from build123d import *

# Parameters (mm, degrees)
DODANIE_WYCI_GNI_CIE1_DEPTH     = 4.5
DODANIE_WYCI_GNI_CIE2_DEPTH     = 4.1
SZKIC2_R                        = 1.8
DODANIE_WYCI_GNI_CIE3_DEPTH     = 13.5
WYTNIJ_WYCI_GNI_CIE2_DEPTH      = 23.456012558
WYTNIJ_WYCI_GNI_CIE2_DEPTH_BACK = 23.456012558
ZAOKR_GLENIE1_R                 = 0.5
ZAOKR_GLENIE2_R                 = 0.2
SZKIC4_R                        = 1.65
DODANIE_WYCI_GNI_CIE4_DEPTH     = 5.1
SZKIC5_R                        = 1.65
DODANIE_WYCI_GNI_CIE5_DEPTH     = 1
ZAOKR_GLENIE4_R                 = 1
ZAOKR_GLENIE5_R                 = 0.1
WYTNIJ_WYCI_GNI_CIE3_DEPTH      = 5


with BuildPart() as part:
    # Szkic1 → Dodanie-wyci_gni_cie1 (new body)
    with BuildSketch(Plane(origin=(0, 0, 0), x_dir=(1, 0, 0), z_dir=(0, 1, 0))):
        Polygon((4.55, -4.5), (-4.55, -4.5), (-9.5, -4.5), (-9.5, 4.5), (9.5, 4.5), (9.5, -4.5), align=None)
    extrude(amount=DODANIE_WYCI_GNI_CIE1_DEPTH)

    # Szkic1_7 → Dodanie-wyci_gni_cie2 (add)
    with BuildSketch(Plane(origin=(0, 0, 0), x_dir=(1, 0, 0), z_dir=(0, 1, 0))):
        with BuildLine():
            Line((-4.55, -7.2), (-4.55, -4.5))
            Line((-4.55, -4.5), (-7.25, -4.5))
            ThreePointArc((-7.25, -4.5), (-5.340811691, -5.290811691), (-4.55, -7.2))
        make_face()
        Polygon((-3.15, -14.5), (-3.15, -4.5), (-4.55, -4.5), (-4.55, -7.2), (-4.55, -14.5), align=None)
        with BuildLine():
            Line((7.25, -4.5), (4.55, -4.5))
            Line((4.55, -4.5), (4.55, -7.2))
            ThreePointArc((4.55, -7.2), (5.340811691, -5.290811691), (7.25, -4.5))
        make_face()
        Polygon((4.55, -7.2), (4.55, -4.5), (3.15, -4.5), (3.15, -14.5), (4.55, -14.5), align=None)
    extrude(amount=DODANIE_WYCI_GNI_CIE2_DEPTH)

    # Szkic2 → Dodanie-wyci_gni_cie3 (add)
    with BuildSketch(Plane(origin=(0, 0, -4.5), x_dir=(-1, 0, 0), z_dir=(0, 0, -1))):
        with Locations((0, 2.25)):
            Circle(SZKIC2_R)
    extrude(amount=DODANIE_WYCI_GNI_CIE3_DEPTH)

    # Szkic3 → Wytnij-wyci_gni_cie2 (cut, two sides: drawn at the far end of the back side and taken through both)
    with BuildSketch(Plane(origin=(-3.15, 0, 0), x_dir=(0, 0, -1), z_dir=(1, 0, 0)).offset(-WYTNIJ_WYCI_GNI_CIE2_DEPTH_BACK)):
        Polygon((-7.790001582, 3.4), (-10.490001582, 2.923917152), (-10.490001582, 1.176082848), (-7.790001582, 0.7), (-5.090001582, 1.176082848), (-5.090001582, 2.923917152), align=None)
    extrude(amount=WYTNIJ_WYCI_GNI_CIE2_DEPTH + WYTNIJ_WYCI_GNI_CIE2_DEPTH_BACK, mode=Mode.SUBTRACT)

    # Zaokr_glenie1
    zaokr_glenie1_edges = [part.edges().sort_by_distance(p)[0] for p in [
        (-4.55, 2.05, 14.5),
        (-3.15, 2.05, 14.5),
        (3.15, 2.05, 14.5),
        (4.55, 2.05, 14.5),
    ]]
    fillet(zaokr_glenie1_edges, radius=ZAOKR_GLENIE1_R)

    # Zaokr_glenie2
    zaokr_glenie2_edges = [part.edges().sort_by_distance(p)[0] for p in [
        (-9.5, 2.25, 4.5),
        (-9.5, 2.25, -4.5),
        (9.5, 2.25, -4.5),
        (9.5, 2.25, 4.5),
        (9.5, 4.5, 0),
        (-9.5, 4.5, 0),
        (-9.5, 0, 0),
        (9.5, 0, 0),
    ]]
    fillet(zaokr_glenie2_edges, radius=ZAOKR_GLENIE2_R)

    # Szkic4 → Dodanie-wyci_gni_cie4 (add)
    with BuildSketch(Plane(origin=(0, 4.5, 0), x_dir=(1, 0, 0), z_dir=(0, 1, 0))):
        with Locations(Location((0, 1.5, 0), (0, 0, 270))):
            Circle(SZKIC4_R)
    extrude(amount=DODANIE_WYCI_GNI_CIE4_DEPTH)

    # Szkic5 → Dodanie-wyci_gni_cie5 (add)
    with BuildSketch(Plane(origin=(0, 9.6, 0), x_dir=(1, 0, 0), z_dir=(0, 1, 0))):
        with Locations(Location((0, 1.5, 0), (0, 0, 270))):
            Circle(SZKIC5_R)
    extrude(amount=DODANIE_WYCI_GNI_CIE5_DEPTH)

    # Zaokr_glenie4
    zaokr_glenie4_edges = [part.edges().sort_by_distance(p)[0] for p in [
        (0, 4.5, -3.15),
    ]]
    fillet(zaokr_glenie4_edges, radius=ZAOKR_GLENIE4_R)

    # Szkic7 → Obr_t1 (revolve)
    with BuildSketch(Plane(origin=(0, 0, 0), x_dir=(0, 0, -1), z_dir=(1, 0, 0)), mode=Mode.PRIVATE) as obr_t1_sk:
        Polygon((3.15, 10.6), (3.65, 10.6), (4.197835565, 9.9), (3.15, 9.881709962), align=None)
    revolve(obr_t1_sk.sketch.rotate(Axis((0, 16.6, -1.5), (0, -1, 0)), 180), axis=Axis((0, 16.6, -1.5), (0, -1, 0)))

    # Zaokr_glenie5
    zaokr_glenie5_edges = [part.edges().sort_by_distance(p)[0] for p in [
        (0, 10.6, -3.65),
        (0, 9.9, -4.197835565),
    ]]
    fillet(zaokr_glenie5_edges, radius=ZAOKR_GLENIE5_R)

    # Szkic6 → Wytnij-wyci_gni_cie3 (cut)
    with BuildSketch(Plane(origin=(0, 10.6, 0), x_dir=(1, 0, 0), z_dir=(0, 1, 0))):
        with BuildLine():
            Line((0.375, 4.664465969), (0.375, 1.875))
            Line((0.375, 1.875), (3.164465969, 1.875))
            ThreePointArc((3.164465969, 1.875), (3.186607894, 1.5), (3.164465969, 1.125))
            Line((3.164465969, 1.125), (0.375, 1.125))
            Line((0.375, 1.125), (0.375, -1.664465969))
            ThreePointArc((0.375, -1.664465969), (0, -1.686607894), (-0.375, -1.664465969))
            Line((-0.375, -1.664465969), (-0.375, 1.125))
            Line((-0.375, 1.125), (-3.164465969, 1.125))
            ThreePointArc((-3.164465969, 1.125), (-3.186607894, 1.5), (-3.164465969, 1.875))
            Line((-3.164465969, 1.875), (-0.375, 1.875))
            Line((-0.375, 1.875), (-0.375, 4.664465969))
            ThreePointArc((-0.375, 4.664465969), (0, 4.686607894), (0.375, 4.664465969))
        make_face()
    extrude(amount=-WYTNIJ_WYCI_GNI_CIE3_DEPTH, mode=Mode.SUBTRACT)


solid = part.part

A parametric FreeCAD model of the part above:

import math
import FreeCAD as App
import Part
import Sketcher
from FreeCAD import Vector
Q = App.Units.Quantity


def edges_at(feature, points):
    """Names of the edges that pass closest to the given points."""
    edges = feature.Shape.Edges
    near = lambda p: min(range(len(edges)), key=lambda i: edges[i].distToShape(Part.Vertex(*p))[0])
    return sorted({f"Edge{near(p) + 1}" for p in points})

doc = App.newDocument("Part")
body = doc.addObject("PartDesign::Body", "Body")

# Sketch on XZ plane
sketch1 = body.newObject("Sketcher::SketchObject", "Sketch")
sketch1.AttachmentSupport = (doc.getObject("XZ_Plane"), [""])
sketch1.MapMode = "FlatFace"
sketch1.addGeometry(Part.LineSegment(Vector(-10, 4, 0), Vector(10, 4, 0)), False)
sketch1.addGeometry(Part.LineSegment(Vector(10, 4, 0), Vector(10, -4, 0)), False)
sketch1.addGeometry(Part.LineSegment(Vector(10, -4, 0), Vector(-10, -4, 0)), False)
sketch1.addGeometry(Part.LineSegment(Vector(-10, -4, 0), Vector(-10, 4, 0)), False)
sketch1.addConstraint(Sketcher.Constraint("Coincident", 0, 2, 1, 1))
sketch1.addConstraint(Sketcher.Constraint("Coincident", 1, 2, 2, 1))
sketch1.addConstraint(Sketcher.Constraint("Coincident", 2, 2, 3, 1))
sketch1.addConstraint(Sketcher.Constraint("Coincident", 3, 2, 0, 1))
sketch1.addConstraint(Sketcher.Constraint("Horizontal", 0))
sketch1.addConstraint(Sketcher.Constraint("Vertical", 1))
sketch1.addConstraint(Sketcher.Constraint("Horizontal", 2))
sketch1.addConstraint(Sketcher.Constraint("Vertical", 3))
sketch1.addConstraint(Sketcher.Constraint("Symmetric", 0, 2, 2, 2, -1, 1))
sketch1.addConstraint(Sketcher.Constraint("DistanceX", 0, 1, 0, 2, 19.0))
sketch1.addConstraint(Sketcher.Constraint("DistanceY", 1, 2, 1, 1, 9.0))
pad1 = body.newObject("PartDesign::Pad", "Pad")
pad1.Profile = sketch1
pad1.Length = 4.5
pad1.Reversed = True

# Sketch on XZ plane
sketch2 = body.newObject("Sketcher::SketchObject", "Sketch001")
sketch2.AttachmentSupport = (doc.getObject("XZ_Plane"), [""])
sketch2.MapMode = "FlatFace"
sketch2.addGeometry(Part.ArcOfCircle(Part.Circle(Vector(-7.3, 7.2, 0), Vector(0, 0, 1), 2.7), math.radians(-90), math.radians(0)), False)
sketch2.addGeometry(Part.LineSegment(Vector(-4.5, 7.2, 0), Vector(-4.5, 14.5, 0)), False)
sketch2.addGeometry(Part.LineSegment(Vector(-4.5, 14.5, 0), Vector(-3.1, 14.5, 0)), False)
sketch2.addGeometry(Part.LineSegment(Vector(-3.1, 14.5, 0), Vector(-3.1, 4.5, 0)), False)
sketch2.addGeometry(Part.LineSegment(Vector(-3.1, 4.5, 0), Vector(-7.2, 4.5, 0)), False)
sketch2.addGeometry(Part.LineSegment(Vector(7.2, 4.5, 0), Vector(3.1, 4.5, 0)), False)
sketch2.addGeometry(Part.LineSegment(Vector(3.1, 4.5, 0), Vector(3.1, 14.5, 0)), False)
sketch2.addGeometry(Part.LineSegment(Vector(3.1, 14.5, 0), Vector(4.5, 14.5, 0)), False)
sketch2.addGeometry(Part.LineSegment(Vector(4.5, 14.5, 0), Vector(4.5, 7.2, 0)), False)
sketch2.addGeometry(Part.ArcOfCircle(Part.Circle(Vector(7.3, 7.2, 0), Vector(0, 0, 1), 2.7), math.radians(-180), math.radians(-90)), False)
sketch2.addConstraint(Sketcher.Constraint("Tangent", 0, 2, 1, 1))
sketch2.addConstraint(Sketcher.Constraint("Coincident", 1, 2, 2, 1))
sketch2.addConstraint(Sketcher.Constraint("Coincident", 2, 2, 3, 1))
sketch2.addConstraint(Sketcher.Constraint("Coincident", 3, 2, 4, 1))
sketch2.addConstraint(Sketcher.Constraint("Tangent", 4, 2, 0, 1))
sketch2.addConstraint(Sketcher.Constraint("Coincident", 5, 2, 6, 1))
sketch2.addConstraint(Sketcher.Constraint("Coincident", 6, 2, 7, 1))
sketch2.addConstraint(Sketcher.Constraint("Coincident", 7, 2, 8, 1))
sketch2.addConstraint(Sketcher.Constraint("Tangent", 8, 2, 9, 1))
sketch2.addConstraint(Sketcher.Constraint("Tangent", 9, 2, 5, 1))
sketch2.addConstraint(Sketcher.Constraint("Vertical", 1))
sketch2.addConstraint(Sketcher.Constraint("Horizontal", 2))
sketch2.addConstraint(Sketcher.Constraint("Vertical", 3))
sketch2.addConstraint(Sketcher.Constraint("Horizontal", 4))
sketch2.addConstraint(Sketcher.Constraint("Horizontal", 5))
sketch2.addConstraint(Sketcher.Constraint("Vertical", 6))
sketch2.addConstraint(Sketcher.Constraint("Horizontal", 7))
sketch2.addConstraint(Sketcher.Constraint("Vertical", 8))
sketch2.addConstraint(Sketcher.Constraint("Equal", 0, 9))
sketch2.addConstraint(Sketcher.Constraint("Symmetric", 0, 3, 9, 3, -2))
sketch2.addConstraint(Sketcher.Constraint("Symmetric", 2, 2, 6, 2, -2))
sketch2.addConstraint(Sketcher.Constraint("Radius", 0, 2.7))
sketch2.addConstraint(Sketcher.Constraint("DistanceY", 3, 2, 3, 1, 10.0))
sketch2.addConstraint(Sketcher.Constraint("DistanceX", 2, 1, 2, 2, 1.4))
sketch2.addConstraint(Sketcher.Constraint("DistanceY", -1, 1, 0, 3, 7.2))
sketch2.addConstraint(Sketcher.Constraint("DistanceX", 0, 3, 9, 3, 14.5))
pad2 = body.newObject("PartDesign::Pad", "Pad001")
pad2.Profile = sketch2
pad2.Length = 4.1
pad2.Reversed = True

# Sketch on XY plane
sketch3 = body.newObject("Sketcher::SketchObject", "Sketch002")
sketch3.AttachmentSupport = (doc.getObject("XY_Plane"), [""])
sketch3.MapMode = "FlatFace"
sketch3.AttachmentOffset = App.Placement(Vector(0, 0, -4.5), App.Rotation())
sketch3.addGeometry(Part.Circle(Vector(0, 2.2, 0), Vector(0, 0, 1), 1.8), False)
sketch3.addConstraint(Sketcher.Constraint("PointOnObject", 0, 3, -2))
sketch3.addConstraint(Sketcher.Constraint("Diameter", 0, 3.6))
sketch3.addConstraint(Sketcher.Constraint("DistanceY", -1, 1, 0, 3, 2.25))
pad3 = body.newObject("PartDesign::Pad", "Pad002")
pad3.Profile = sketch3
pad3.Length = 13.5
pad3.Reversed = True

# Sketch on YZ plane
sketch4 = body.newObject("Sketcher::SketchObject", "Sketch003")
sketch4.AttachmentSupport = (doc.getObject("YZ_Plane"), [""])
sketch4.MapMode = "FlatFace"
sketch4.AttachmentOffset = App.Placement(Vector(0, 0, -3.15), App.Rotation())
sketch4.addGeometry(Part.LineSegment(Vector(3.4, 7.8, 0), Vector(2.9, 10.5, 0)), False)
sketch4.addGeometry(Part.LineSegment(Vector(2.9, 10.5, 0), Vector(1.2, 10.5, 0)), False)
sketch4.addGeometry(Part.LineSegment(Vector(1.2, 10.5, 0), Vector(0.7, 7.8, 0)), False)
sketch4.addGeometry(Part.LineSegment(Vector(0.7, 7.8, 0), Vector(1.2, 5.1, 0)), False)
sketch4.addGeometry(Part.LineSegment(Vector(1.2, 5.1, 0), Vector(2.9, 5.1, 0)), False)
sketch4.addGeometry(Part.LineSegment(Vector(2.9, 5.1, 0), Vector(3.4, 7.8, 0)), False)
sketch4.addConstraint(Sketcher.Constraint("Coincident", 0, 2, 1, 1))
sketch4.addConstraint(Sketcher.Constraint("Coincident", 1, 2, 2, 1))
sketch4.addConstraint(Sketcher.Constraint("Coincident", 2, 2, 3, 1))
sketch4.addConstraint(Sketcher.Constraint("Coincident", 3, 2, 4, 1))
sketch4.addConstraint(Sketcher.Constraint("Coincident", 4, 2, 5, 1))
sketch4.addConstraint(Sketcher.Constraint("Coincident", 5, 2, 0, 1))
sketch4.addConstraint(Sketcher.Constraint("Horizontal", 1))
sketch4.addConstraint(Sketcher.Constraint("Horizontal", 4))
sketch4.addConstraint(Sketcher.Constraint("Parallel", 0, 3))
sketch4.addConstraint(Sketcher.Constraint("Parallel", 2, 5))
sketch4.addConstraint(Sketcher.Constraint("Horizontal", 2, 2, 5, 2))
sketch4.addConstraint(Sketcher.Constraint("Vertical", 1, 2, 3, 2))
sketch4.addConstraint(Sketcher.Constraint("Vertical", 0, 2, 4, 2))
sketch4.addConstraint(Sketcher.Constraint("Angle", 0, Q("100 deg")))
sketch4.addConstraint(Sketcher.Constraint("DistanceX", -1, 1, 2, 2, 0.7))
sketch4.addConstraint(Sketcher.Constraint("DistanceX", -1, 1, 5, 2, 3.4))
sketch4.addConstraint(Sketcher.Constraint("DistanceY", 2, 2, 1, 2, 2.7))
sketch4.addConstraint(Sketcher.Constraint("DistanceY", -1, 1, 0, 2, 10.490002))
pocket1 = body.newObject("PartDesign::Pocket", "Pocket")
pocket1.Profile = sketch4
pocket1.Type = "ThroughAll"
pocket1.Midplane = True
doc.recompute()

fillet = body.newObject("PartDesign::Fillet", "Fillet")
fillet.Base = (pocket1, edges_at(pocket1, [
    (-4.55, 2.05, 14.5),
    (-3.15, 2.05, 14.5),
    (3.15, 2.05, 14.5),
    (4.55, 2.05, 14.5),
]))
fillet.Radius = 0.5
doc.recompute()

fillet2 = body.newObject("PartDesign::Fillet", "Fillet001")
fillet2.Base = (fillet, edges_at(fillet, [
    (-9.5, 2.25, 4.5),
    (-9.5, 2.25, -4.5),
    (9.5, 2.25, -4.5),
    (9.5, 2.25, 4.5),
    (9.5, 4.5, 0),
    (-9.5, 4.5, 0),
    (-9.5, 0, 0),
    (9.5, 0, 0),
]))
fillet2.Radius = 0.2

# Sketch on XZ plane
sketch5 = body.newObject("Sketcher::SketchObject", "Sketch004")
sketch5.AttachmentSupport = (doc.getObject("XZ_Plane"), [""])
sketch5.MapMode = "FlatFace"
sketch5.AttachmentOffset = App.Placement(Vector(0, 0, -4.5), App.Rotation())
sketch5.addGeometry(Part.Circle(Vector(0, -1.5, 0), Vector(0, 0, 1), 1.6), False)
sketch5.addConstraint(Sketcher.Constraint("PointOnObject", 0, 3, -2))
sketch5.addConstraint(Sketcher.Constraint("Diameter", 0, 3.3))
sketch5.addConstraint(Sketcher.Constraint("DistanceY", 0, 3, -1, 1, 1.5))
pad4 = body.newObject("PartDesign::Pad", "Pad003")
pad4.Profile = sketch5
pad4.Length = 5.1
pad4.Reversed = True

# Sketch on XZ plane
sketch6 = body.newObject("Sketcher::SketchObject", "Sketch005")
sketch6.AttachmentSupport = (doc.getObject("XZ_Plane"), [""])
sketch6.MapMode = "FlatFace"
sketch6.AttachmentOffset = App.Placement(Vector(0, 0, -9.6), App.Rotation())
sketch6.addGeometry(Part.Circle(Vector(0, -1.5, 0), Vector(0, 0, 1), 1.6), False)
sketch6.addConstraint(Sketcher.Constraint("PointOnObject", 0, 3, -2))
sketch6.addConstraint(Sketcher.Constraint("Diameter", 0, 3.3))
sketch6.addConstraint(Sketcher.Constraint("DistanceY", 0, 3, -1, 1, 1.5))
pad5 = body.newObject("PartDesign::Pad", "Pad004")
pad5.Profile = sketch6
pad5.Length = 1
pad5.Reversed = True
doc.recompute()

fillet3 = body.newObject("PartDesign::Fillet", "Fillet002")
fillet3.Base = (pad5, edges_at(pad5, [(0, 4.5, -3.15)]))
fillet3.Radius = 1

# Sketch on YZ plane
sketch7 = body.newObject("Sketcher::SketchObject", "Sketch006")
sketch7.AttachmentSupport = (doc.getObject("YZ_Plane"), [""])
sketch7.MapMode = "FlatFace"
sketch7.addGeometry(Part.LineSegment(Vector(10.6, -3.6, 0), Vector(10.6, -3.1, 0)), False)
sketch7.addGeometry(Part.LineSegment(Vector(10.6, -3.1, 0), Vector(9.9, -3.1, 0)), False)
sketch7.addGeometry(Part.LineSegment(Vector(9.9, -3.1, 0), Vector(9.9, -4.2, 0)), False)
sketch7.addGeometry(Part.LineSegment(Vector(9.9, -4.2, 0), Vector(10.6, -3.6, 0)), False)
sketch7.addGeometry(Part.LineSegment(Vector(10.6, -1.5, 0), Vector(9.9, -1.5, 0)), True)  # axis
sketch7.addConstraint(Sketcher.Constraint("Coincident", 0, 2, 1, 1))
sketch7.addConstraint(Sketcher.Constraint("Coincident", 1, 2, 2, 1))
sketch7.addConstraint(Sketcher.Constraint("Coincident", 2, 2, 3, 1))
sketch7.addConstraint(Sketcher.Constraint("Coincident", 3, 2, 0, 1))
sketch7.addConstraint(Sketcher.Constraint("Vertical", 0))
sketch7.addConstraint(Sketcher.Constraint("Horizontal", 1))
sketch7.addConstraint(Sketcher.Constraint("Horizontal", 4))
sketch7.addConstraint(Sketcher.Constraint("Vertical", 3, 2, 4, 1))
sketch7.addConstraint(Sketcher.Constraint("Vertical", 1, 2, 4, 2))
sketch7.addConstraint(Sketcher.Constraint("Angle", 2, Q("-89 deg")))
sketch7.addConstraint(Sketcher.Constraint("DistanceY", 0, 1, 0, 2, 0.5))
sketch7.addConstraint(Sketcher.Constraint("DistanceX", -1, 1, 0, 2, 10.6))
sketch7.addConstraint(Sketcher.Constraint("DistanceX", -1, 1, 2, 2, 9.9))
sketch7.addConstraint(Sketcher.Constraint("DistanceY", 4, 1, -1, 1, 1.5))
sketch7.addConstraint(Sketcher.Constraint("DistanceY", 0, 2, -1, 1, 3.15))
sketch7.addConstraint(Sketcher.Constraint("DistanceX", 1, 2, 1, 1, 0.71829))
revolution = body.newObject("PartDesign::Revolution", "Revolution")
revolution.Profile = sketch7
revolution.ReferenceAxis = (sketch7, ["Axis0"])
revolution.Angle = 360
doc.recompute()

fillet4 = body.newObject("PartDesign::Fillet", "Fillet003")
fillet4.Base = (revolution, edges_at(revolution, [(0, 10.6, -3.65), (0, 9.9, -4.198)]))
fillet4.Radius = 0.1

# Sketch on XZ plane
sketch8 = body.newObject("Sketcher::SketchObject", "Sketch007")
sketch8.AttachmentSupport = (doc.getObject("XZ_Plane"), [""])
sketch8.MapMode = "FlatFace"
sketch8.AttachmentOffset = App.Placement(Vector(0, 0, -10.6), App.Rotation())
sketch8.addGeometry(Part.LineSegment(Vector(0.4, -1.9, 0), Vector(0.4, -4.7, 0)), False)
sketch8.addGeometry(Part.ArcOfCircle(Part.Circle(Vector(0, -1.5, 0), Vector(0, 0, 1), 3.2), math.radians(-96.76), math.radians(-83.24)), False)
sketch8.addGeometry(Part.LineSegment(Vector(-0.4, -4.7, 0), Vector(-0.4, -1.9, 0)), False)
sketch8.addGeometry(Part.LineSegment(Vector(-0.4, -1.9, 0), Vector(-3.2, -1.9, 0)), False)
sketch8.addGeometry(Part.ArcOfCircle(Part.Circle(Vector(0, -1.5, 0), Vector(0, 0, 1), 3.2), math.radians(173.24), math.radians(186.76)), False)
sketch8.addGeometry(Part.LineSegment(Vector(-3.2, -1.1, 0), Vector(-0.4, -1.1, 0)), False)
sketch8.addGeometry(Part.LineSegment(Vector(-0.4, -1.1, 0), Vector(-0.4, 1.7, 0)), False)
sketch8.addGeometry(Part.ArcOfCircle(Part.Circle(Vector(0, -1.5, 0), Vector(0, 0, 1), 3.2), math.radians(83.24), math.radians(96.76)), False)
sketch8.addGeometry(Part.LineSegment(Vector(0.4, 1.7, 0), Vector(0.4, -1.1, 0)), False)
sketch8.addGeometry(Part.LineSegment(Vector(0.4, -1.1, 0), Vector(3.2, -1.1, 0)), False)
sketch8.addGeometry(Part.ArcOfCircle(Part.Circle(Vector(0, -1.5, 0), Vector(0, 0, 1), 3.2), math.radians(-6.76), math.radians(6.76)), False)
sketch8.addGeometry(Part.LineSegment(Vector(3.2, -1.9, 0), Vector(0.4, -1.9, 0)), False)
sketch8.addConstraint(Sketcher.Constraint("Coincident", 0, 2, 1, 2))
sketch8.addConstraint(Sketcher.Constraint("Coincident", 1, 1, 2, 1))
sketch8.addConstraint(Sketcher.Constraint("Coincident", 2, 2, 3, 1))
sketch8.addConstraint(Sketcher.Constraint("Coincident", 3, 2, 4, 2))
sketch8.addConstraint(Sketcher.Constraint("Coincident", 4, 1, 5, 1))
sketch8.addConstraint(Sketcher.Constraint("Coincident", 5, 2, 6, 1))
sketch8.addConstraint(Sketcher.Constraint("Coincident", 6, 2, 7, 2))
sketch8.addConstraint(Sketcher.Constraint("Coincident", 7, 1, 8, 1))
sketch8.addConstraint(Sketcher.Constraint("Coincident", 8, 2, 9, 1))
sketch8.addConstraint(Sketcher.Constraint("Coincident", 9, 2, 10, 2))
sketch8.addConstraint(Sketcher.Constraint("Coincident", 10, 1, 11, 1))
sketch8.addConstraint(Sketcher.Constraint("Coincident", 11, 2, 0, 1))
sketch8.addConstraint(Sketcher.Constraint("Vertical", 0))
sketch8.addConstraint(Sketcher.Constraint("Vertical", 2))
sketch8.addConstraint(Sketcher.Constraint("Horizontal", 3))
sketch8.addConstraint(Sketcher.Constraint("Horizontal", 5))
sketch8.addConstraint(Sketcher.Constraint("Vertical", 6))
sketch8.addConstraint(Sketcher.Constraint("Vertical", 8))
sketch8.addConstraint(Sketcher.Constraint("Horizontal", 9))
sketch8.addConstraint(Sketcher.Constraint("Horizontal", 11))
sketch8.addConstraint(Sketcher.Constraint("Coincident", 4, 3, 1, 3))
sketch8.addConstraint(Sketcher.Constraint("Coincident", 7, 3, 1, 3))
sketch8.addConstraint(Sketcher.Constraint("Coincident", 10, 3, 1, 3))
sketch8.addConstraint(Sketcher.Constraint("Equal", 1, 4))
sketch8.addConstraint(Sketcher.Constraint("Equal", 4, 7))
sketch8.addConstraint(Sketcher.Constraint("Equal", 7, 10))
sketch8.addConstraint(Sketcher.Constraint("Symmetric", 0, 2, 1, 1, -2))
sketch8.addConstraint(Sketcher.Constraint("Symmetric", 5, 2, 8, 2, -2))
sketch8.addConstraint(Sketcher.Constraint("Horizontal", 3, 2, 10, 1))
sketch8.addConstraint(Sketcher.Constraint("Vertical", 3, 2, 4, 1))
sketch8.addConstraint(Sketcher.Constraint("Vertical", 2, 2, 5, 2))
sketch8.addConstraint(Sketcher.Constraint("Equal", 11, 0))
sketch8.addConstraint(Sketcher.Constraint("DistanceY", 1, 3, -1, 1, 1.5))
sketch8.addConstraint(Sketcher.Constraint("DistanceX", 1, 1, 0, 2, 0.75))
sketch8.addConstraint(Sketcher.Constraint("Radius", 1, 3.186608))
pocket2 = body.newObject("PartDesign::Pocket", "Pocket001")
pocket2.Profile = sketch8
pocket2.Length = 5
pocket2.Reversed = True

doc.recompute()
